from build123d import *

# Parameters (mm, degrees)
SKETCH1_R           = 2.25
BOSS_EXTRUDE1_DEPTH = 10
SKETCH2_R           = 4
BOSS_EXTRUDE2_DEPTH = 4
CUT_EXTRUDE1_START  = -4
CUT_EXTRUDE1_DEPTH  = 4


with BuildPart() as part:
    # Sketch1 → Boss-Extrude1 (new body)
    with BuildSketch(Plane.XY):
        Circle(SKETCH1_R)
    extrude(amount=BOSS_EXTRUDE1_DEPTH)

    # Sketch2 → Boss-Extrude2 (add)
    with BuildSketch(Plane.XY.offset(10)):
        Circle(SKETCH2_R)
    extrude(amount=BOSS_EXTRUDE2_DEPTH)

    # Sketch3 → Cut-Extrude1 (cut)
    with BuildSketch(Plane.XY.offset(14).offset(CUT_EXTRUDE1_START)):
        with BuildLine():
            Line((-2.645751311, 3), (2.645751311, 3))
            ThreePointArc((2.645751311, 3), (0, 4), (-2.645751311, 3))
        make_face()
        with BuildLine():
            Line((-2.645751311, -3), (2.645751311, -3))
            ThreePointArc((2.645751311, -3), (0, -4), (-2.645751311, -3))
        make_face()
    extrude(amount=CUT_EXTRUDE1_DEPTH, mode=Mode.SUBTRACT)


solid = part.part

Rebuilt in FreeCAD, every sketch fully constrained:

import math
import FreeCAD as App
import Part
import Sketcher

V = App.Vector

doc = App.newDocument("Part")
body = doc.addObject("PartDesign::Body", "Body")

# Sketch on XY plane
sketch1 = doc.addObject("Sketcher::SketchObject", "Sketch")
body.addObject(sketch1)
sketch1.AttachmentSupport = (doc.XY_Plane, [""])
sketch1.MapMode = "FlatFace"
sketch1.addGeometry(Part.Circle(V(0, 0, 0), V(0, 0, 1), 2.25), False)
sketch1.addConstraint(Sketcher.Constraint("Coincident", 0, 3, -1, 1))
sketch1.addConstraint(Sketcher.Constraint("Diameter", 0, 4.5))
pad1 = doc.addObject("PartDesign::Pad", "Pad")
body.addObject(pad1)
pad1.Profile = sketch1
pad1.Length = 10

# Sketch on XY plane
sketch2 = doc.addObject("Sketcher::SketchObject", "Sketch001")
body.addObject(sketch2)
sketch2.AttachmentSupport = (doc.XY_Plane, [""])
sketch2.MapMode = "FlatFace"
sketch2.AttachmentOffset = App.Placement(V(0, 0, 10), App.Rotation())
sketch2.addGeometry(Part.Circle(V(0, 0, 0), V(0, 0, 1), 4), False)
sketch2.addConstraint(Sketcher.Constraint("Coincident", 0, 3, -1, 1))
sketch2.addConstraint(Sketcher.Constraint("Diameter", 0, 8.0))
pad2 = doc.addObject("PartDesign::Pad", "Pad001")
body.addObject(pad2)
pad2.Profile = sketch2
pad2.Length = 4

# Sketch on XY plane
sketch3 = doc.addObject("Sketcher::SketchObject", "Sketch002")
body.addObject(sketch3)
sketch3.AttachmentSupport = (doc.XY_Plane, [""])
sketch3.MapMode = "FlatFace"
sketch3.AttachmentOffset = App.Placement(V(0, 0, 10), App.Rotation())
sketch3.addGeometry(Part.LineSegment(V(-2.645751, 3, 0), V(2.645751, 3, 0)), False)
sketch3.addGeometry(Part.ArcOfCircle(Part.Circle(V(0, 0, 0), V(0, 0, 1), 4), math.radians(48.590378), math.radians(131.409622)), False)
sketch3.addGeometry(Part.LineSegment(V(2.645751, -3, 0), V(-2.645751, -3, 0)), False)
sketch3.addGeometry(Part.ArcOfCircle(Part.Circle(V(0, 0, 0), V(0, 0, 1), 4), math.radians(-131.409622), math.radians(-48.590378)), False)
sketch3.addConstraint(Sketcher.Constraint("Coincident", 0, 1, 1, 2))
sketch3.addConstraint(Sketcher.Constraint("Coincident", 1, 1, 0, 2))
sketch3.addConstraint(Sketcher.Constraint("Coincident", 2, 1, 3, 2))
sketch3.addConstraint(Sketcher.Constraint("Coincident", 3, 1, 2, 2))
sketch3.addConstraint(Sketcher.Constraint("Horizontal", 0))
sketch3.addConstraint(Sketcher.Constraint("Horizontal", 2))
sketch3.addConstraint(Sketcher.Constraint("Coincident", 1, 3, -1, 1))
sketch3.addConstraint(Sketcher.Constraint("Coincident", 3, 3, -1, 1))
sketch3.addConstraint(Sketcher.Constraint("Equal", 1, 3))
sketch3.addConstraint(Sketcher.Constraint("Vertical", 1, 1, 2, 1))
sketch3.addConstraint(Sketcher.Constraint("Radius", 1, 4.0))
sketch3.addConstraint(Sketcher.Constraint("DistanceY", -1, 1, 0, 1, 3.0))
pocket1 = doc.addObject("PartDesign::Pocket", "Pocket")
body.addObject(pocket1)
pocket1.Profile = sketch3
pocket1.Length = 4
pocket1.Reversed = True

doc.recompute()
